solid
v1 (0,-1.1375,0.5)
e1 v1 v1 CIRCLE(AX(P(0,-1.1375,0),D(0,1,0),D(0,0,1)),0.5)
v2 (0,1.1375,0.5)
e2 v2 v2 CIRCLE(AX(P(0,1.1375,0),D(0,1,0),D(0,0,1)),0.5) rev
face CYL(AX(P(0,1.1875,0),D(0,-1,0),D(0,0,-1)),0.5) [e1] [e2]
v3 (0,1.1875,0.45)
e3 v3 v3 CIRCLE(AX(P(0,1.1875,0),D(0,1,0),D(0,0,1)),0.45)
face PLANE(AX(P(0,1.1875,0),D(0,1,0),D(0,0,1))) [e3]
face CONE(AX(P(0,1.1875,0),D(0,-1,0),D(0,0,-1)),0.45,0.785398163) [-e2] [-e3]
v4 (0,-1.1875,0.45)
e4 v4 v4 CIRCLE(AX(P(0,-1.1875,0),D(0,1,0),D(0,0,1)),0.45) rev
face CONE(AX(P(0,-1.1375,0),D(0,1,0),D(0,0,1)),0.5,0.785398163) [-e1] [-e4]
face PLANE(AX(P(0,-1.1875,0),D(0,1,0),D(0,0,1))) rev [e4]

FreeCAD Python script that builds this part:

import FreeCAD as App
import Part
import Sketcher
from FreeCAD import Vector
Q = App.Units.Quantity


def edges_at(feature, points):
    """Names of the edges that pass closest to the given points."""
    edges = feature.Shape.Edges
    near = lambda p: min(range(len(edges)), key=lambda i: edges[i].distToShape(Part.Vertex(*p))[0])
    return sorted({f"Edge{near(p) + 1}" for p in points})

doc = App.newDocument("Part")
body = doc.addObject("PartDesign::Body", "Body")

sketch1 = body.newObject("Sketcher::SketchObject", "Sketch")
sketch1.AttachmentSupport = (doc.getObject("XZ_Plane"), [""])
sketch1.MapMode = "FlatFace"
sketch1.addGeometry(Part.Circle(Vector(0, 0, 0), Vector(0, 0, 1), 0.5), False)
sketch1.addConstraint(Sketcher.Constraint("Coincident", 0, 3, -1, 1))
sketch1.addConstraint(Sketcher.Constraint("Diameter", 0, Q("1 mm")))
pad1 = body.newObject("PartDesign::Pad", "Pad")
pad1.Profile = sketch1
pad1.Length = 2.375
pad1.Midplane = True
doc.recompute()

chamfer = body.newObject("PartDesign::Chamfer", "Chamfer")
chamfer.Base = (pad1, edges_at(pad1, [(-0.5, -1.188, 0), (-0.5, 1.188, 0)]))
chamfer.Size = 0.05

doc.recompute()
